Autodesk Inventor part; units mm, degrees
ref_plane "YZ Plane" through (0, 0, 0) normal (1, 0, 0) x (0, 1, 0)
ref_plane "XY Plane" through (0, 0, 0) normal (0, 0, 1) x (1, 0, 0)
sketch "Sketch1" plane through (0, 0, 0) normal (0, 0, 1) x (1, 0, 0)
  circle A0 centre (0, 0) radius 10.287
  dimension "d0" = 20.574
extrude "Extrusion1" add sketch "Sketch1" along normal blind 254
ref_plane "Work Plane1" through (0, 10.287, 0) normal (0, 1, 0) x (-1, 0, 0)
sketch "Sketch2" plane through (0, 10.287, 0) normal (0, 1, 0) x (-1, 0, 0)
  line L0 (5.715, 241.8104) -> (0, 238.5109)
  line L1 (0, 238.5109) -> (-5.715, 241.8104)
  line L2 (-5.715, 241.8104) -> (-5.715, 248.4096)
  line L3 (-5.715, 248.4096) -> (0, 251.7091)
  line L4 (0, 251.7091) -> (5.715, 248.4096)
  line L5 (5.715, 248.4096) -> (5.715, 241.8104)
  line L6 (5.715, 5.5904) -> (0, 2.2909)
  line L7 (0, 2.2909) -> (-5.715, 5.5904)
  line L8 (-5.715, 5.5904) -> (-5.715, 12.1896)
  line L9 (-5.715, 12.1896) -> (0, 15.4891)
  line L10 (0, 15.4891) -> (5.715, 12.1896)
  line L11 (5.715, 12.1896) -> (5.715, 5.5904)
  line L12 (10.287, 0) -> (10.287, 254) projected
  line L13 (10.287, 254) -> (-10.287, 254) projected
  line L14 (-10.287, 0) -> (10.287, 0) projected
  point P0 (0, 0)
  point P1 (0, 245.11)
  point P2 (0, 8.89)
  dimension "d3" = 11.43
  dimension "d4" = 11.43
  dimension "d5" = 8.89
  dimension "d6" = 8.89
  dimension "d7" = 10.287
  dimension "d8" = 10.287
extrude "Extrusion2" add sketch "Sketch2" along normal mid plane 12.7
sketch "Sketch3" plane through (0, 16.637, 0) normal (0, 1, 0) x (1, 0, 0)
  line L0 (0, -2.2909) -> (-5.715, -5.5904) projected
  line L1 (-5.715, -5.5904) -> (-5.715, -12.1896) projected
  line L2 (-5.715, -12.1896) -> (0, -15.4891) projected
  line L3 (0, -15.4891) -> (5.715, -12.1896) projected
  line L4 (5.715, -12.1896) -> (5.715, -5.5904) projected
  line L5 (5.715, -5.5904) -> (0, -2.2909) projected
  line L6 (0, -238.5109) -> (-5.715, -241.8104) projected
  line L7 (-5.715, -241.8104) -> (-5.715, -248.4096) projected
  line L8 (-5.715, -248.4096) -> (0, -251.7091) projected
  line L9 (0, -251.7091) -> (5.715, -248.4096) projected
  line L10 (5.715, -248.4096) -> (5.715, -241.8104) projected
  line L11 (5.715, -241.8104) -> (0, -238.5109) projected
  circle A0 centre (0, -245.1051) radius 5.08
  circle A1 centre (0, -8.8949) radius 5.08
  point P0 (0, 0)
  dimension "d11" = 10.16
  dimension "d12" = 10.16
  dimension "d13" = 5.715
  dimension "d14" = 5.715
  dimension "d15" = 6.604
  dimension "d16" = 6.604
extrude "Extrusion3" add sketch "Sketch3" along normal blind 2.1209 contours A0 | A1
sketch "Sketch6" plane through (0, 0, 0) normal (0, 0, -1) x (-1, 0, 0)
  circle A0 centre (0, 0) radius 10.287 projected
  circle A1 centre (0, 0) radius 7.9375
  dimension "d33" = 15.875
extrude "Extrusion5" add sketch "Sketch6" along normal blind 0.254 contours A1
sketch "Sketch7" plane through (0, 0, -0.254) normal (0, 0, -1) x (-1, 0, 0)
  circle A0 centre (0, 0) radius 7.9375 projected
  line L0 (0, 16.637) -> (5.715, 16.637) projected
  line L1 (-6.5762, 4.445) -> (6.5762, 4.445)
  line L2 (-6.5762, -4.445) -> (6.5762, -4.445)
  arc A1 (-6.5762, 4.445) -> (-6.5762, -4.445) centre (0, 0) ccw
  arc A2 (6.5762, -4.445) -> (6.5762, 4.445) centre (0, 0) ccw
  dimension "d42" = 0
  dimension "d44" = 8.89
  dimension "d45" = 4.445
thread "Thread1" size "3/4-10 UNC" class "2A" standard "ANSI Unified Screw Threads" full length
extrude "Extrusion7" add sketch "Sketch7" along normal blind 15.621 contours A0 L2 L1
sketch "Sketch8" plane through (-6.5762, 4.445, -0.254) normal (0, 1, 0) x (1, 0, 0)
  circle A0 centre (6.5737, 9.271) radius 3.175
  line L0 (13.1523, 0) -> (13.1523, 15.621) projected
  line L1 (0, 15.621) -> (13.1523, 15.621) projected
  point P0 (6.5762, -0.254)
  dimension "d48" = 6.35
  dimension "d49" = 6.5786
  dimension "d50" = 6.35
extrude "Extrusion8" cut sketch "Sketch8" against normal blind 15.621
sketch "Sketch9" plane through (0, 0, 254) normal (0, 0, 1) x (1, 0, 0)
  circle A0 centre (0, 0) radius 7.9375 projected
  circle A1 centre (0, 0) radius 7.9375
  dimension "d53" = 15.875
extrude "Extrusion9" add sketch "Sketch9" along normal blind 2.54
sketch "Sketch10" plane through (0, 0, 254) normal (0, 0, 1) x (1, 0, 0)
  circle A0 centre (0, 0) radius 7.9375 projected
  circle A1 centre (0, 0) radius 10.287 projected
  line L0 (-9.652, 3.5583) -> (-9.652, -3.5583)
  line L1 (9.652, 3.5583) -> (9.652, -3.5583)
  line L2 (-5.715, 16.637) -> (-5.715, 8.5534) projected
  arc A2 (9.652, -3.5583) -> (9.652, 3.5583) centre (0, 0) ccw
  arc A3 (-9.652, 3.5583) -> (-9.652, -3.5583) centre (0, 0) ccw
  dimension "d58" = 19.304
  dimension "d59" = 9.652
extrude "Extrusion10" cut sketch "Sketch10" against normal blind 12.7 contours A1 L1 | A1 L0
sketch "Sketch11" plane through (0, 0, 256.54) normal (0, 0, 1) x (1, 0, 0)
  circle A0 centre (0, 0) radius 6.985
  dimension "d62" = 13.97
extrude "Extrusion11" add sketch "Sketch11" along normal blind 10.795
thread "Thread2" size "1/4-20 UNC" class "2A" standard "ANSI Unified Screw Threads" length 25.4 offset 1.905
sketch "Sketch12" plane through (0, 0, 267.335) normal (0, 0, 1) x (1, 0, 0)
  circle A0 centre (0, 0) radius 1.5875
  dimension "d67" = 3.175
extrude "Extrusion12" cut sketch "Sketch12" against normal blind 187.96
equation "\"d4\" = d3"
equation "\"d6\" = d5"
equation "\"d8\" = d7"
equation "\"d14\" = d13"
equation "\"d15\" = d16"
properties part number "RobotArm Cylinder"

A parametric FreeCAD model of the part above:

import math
import FreeCAD as App
import Part
import Sketcher

V = App.Vector
Q = App.Units.Quantity


def add_polygon(sketch, points):
    """Adds a closed chain of lines whose ends are joined by coincident constraints."""
    first, n = sketch.GeometryCount, len(points)
    for a, b in zip(points, points[1:] + points[:1]):
        sketch.addGeometry(Part.LineSegment(App.Vector(*a, 0), App.Vector(*b, 0)), False)
    for i in range(n):
        sketch.addConstraint(Sketcher.Constraint("Coincident", first + i, 2, first + (i + 1) % n, 1))

doc = App.newDocument("Part")
params = doc.addObject("Spreadsheet::Sheet", "Params")
for row, (alias, value) in enumerate([
    ("sketch1_diameter", "0.81 in"),
    ("pad1_length", "10 in"),
    ("pad2_length", "0.5 in"),
    ("sketch3_diameter", "0.4 in"),
    ("pad3_length", "0.0835 in"),
    ("sketch4_diameter", "0.625 in"),
    ("pad4_length", "0.01 in"),
    ("sketch5_radius", "0.3125 in"),
    ("pad5_length", "0.615 in"),
    ("sketch6_diameter", "0.25 in"),
    ("pocket1_length", "0.615 in"),
    ("sketch7_diameter", "0.625 in"),
    ("pad6_length", "0.1 in"),
    ("sketch8_radius", "0.405 in"),
    ("pocket2_length", "0.5 in"),
    ("sketch9_diameter", "0.55 in"),
    ("pad7_length", "0.425 in"),
    ("sketch10_diameter", "0.125 in"),
    ("pocket3_length", "7.4 in"),
], start=1):
    params.set(f"A{row}", alias)
    params.set(f"B{row}", "=" + value)
    params.setAlias(f"B{row}", alias)

body = doc.addObject("PartDesign::Body", "Body")

sketch1 = doc.addObject("Sketcher::SketchObject", "Sketch")
body.addObject(sketch1)
sketch1.AttachmentSupport = (doc.XY_Plane, [""])
sketch1.MapMode = "FlatFace"
sketch1.addGeometry(Part.Circle(V(0, 0, 0), V(0, 0, 1), 10.287), False)
sketch1.addConstraint([
    Sketcher.Constraint("Coincident", 0, 3, -1, 1),
    Sketcher.Constraint("Diameter", 0, Q("0.81 in")),
])
sketch1.setExpression("Constraints[1]", "Params.sketch1_diameter")
pad1 = doc.addObject("PartDesign::Pad", "Pad")
body.addObject(pad1)
pad1.Profile = sketch1
pad1.setExpression("Length", "Params.pad1_length")

sketch2 = doc.addObject("Sketcher::SketchObject", "Sketch001")
body.addObject(sketch2)
sketch2.AttachmentSupport = (doc.XZ_Plane, [""])
sketch2.MapMode = "FlatFace"
sketch2.AttachmentOffset = App.Placement(V(0, 0, -0.405 * 25.4), App.Rotation())
add_polygon(sketch2, [(0, 238.5109), (-5.715, 241.8104), (-5.715, 248.4096), (0, 251.7091), (5.715, 248.4096), (5.715, 241.8104)])
add_polygon(sketch2, [(0, 2.2909), (-5.715, 5.5904), (-5.715, 12.1896), (0, 15.4891), (5.715, 12.1896), (5.715, 5.5904)])
sketch2.addConstraint([
    Sketcher.Constraint("Vertical", 1),
    Sketcher.Constraint("Vertical", 4),
    Sketcher.Constraint("Vertical", 7),
    Sketcher.Constraint("Vertical", 10),
    Sketcher.Constraint("Symmetric", 1, 2, 3, 2, -2),
    Sketcher.Constraint("Symmetric", 7, 2, 9, 2, -2),
    Sketcher.Constraint("PointOnObject", 2, 2, -2),
    Sketcher.Constraint("PointOnObject", 5, 2, -2),
    Sketcher.Constraint("PointOnObject", 8, 2, -2),
    Sketcher.Constraint("PointOnObject", 11, 2, -2),
    Sketcher.Constraint("Parallel", 0, 3),
    Sketcher.Constraint("Parallel", 2, 5),
    Sketcher.Constraint("Parallel", 3, 6),
    Sketcher.Constraint("Parallel", 5, 8),
    Sketcher.Constraint("Parallel", 8, 11),
    Sketcher.Constraint("Vertical", 1, 2, 6, 2),
    Sketcher.Constraint("Equal", 4, 7),
    Sketcher.Constraint("DistanceX", 1, 2, 3, 2, Q("0.45 in")),
    Sketcher.Constraint("Angle", 0, Q("150.0004 deg")),
    Sketcher.Constraint("DistanceY", 6, 2, 0, 2, Q("9.3 in")),
    Sketcher.Constraint("DistanceY", 1, 1, 1, 2, Q("0.2598 in")),
    Sketcher.Constraint("DistanceY", -1, 1, 0, 2, Q("9.5201 in")),
])
pad2 = doc.addObject("PartDesign::Pad", "Pad001")
body.addObject(pad2)
pad2.Profile = sketch2
pad2.setExpression("Length", "Params.pad2_length")
pad2.Midplane = True

sketch3 = doc.addObject("Sketcher::SketchObject", "Sketch002")
body.addObject(sketch3)
sketch3.AttachmentSupport = (doc.XZ_Plane, [""])
sketch3.MapMode = "FlatFace"
sketch3.AttachmentOffset = App.Placement(V(0, 0, -0.655 * 25.4), App.Rotation())
sketch3.addGeometry([
    Part.Circle(V(0, 245.1051, 0), V(0, 0, 1), 5.08),
    Part.Circle(V(0, 8.8949, 0), V(0, 0, 1), 5.08),
], False)
sketch3.addConstraint([
    Sketcher.Constraint("Equal", 0, 1),
    Sketcher.Constraint("PointOnObject", 0, 3, -2),
    Sketcher.Constraint("PointOnObject", 1, 3, -2),
    Sketcher.Constraint("Diameter", 0, Q("0.4 in")),
    Sketcher.Constraint("DistanceY", -1, 1, 0, 3, Q("9.6498 in")),
    Sketcher.Constraint("DistanceY", -1, 1, 1, 3, Q("0.3502 in")),
])
sketch3.setExpression("Constraints[3]", "Params.sketch3_diameter")
pad3 = doc.addObject("PartDesign::Pad", "Pad002")
body.addObject(pad3)
pad3.Profile = sketch3
pad3.setExpression("Length", "Params.pad3_length")
pad3.Reversed = True

sketch4 = doc.addObject("Sketcher::SketchObject", "Sketch003")
body.addObject(sketch4)
sketch4.AttachmentSupport = (doc.XY_Plane, [""])
sketch4.MapMode = "FlatFace"
sketch4.addGeometry(Part.Circle(V(0, 0, 0), V(0, 0, 1), 7.9375), False)
sketch4.addConstraint([
    Sketcher.Constraint("Coincident", 0, 3, -1, 1),
    Sketcher.Constraint("Diameter", 0, Q("0.625 in")),
])
sketch4.setExpression("Constraints[1]", "Params.sketch4_diameter")
pad4 = doc.addObject("PartDesign::Pad", "Pad003")
body.addObject(pad4)
pad4.Profile = sketch4
pad4.setExpression("Length", "Params.pad4_length")
pad4.Reversed = True

sketch5 = doc.addObject("Sketcher::SketchObject", "Sketch004")
body.addObject(sketch5)
sketch5.AttachmentSupport = (doc.XY_Plane, [""])
sketch5.MapMode = "FlatFace"
sketch5.AttachmentOffset = App.Placement(V(0, 0, -0.01 * 25.4), App.Rotation())
sketch5.addGeometry([
    Part.ArcOfCircle(Part.Circle(V(0, 0, 0), V(0, 0, 1), 7.9375), math.radians(145.944364), math.radians(214.055636)),
    Part.LineSegment(V(-6.5762, 4.445, 0), V(6.5762, 4.445, 0)),
    Part.ArcOfCircle(Part.Circle(V(0, 0, 0), V(0, 0, 1), 7.9375), math.radians(-34.055636), math.radians(34.055636)),
    Part.LineSegment(V(6.5762, -4.445, 0), V(-6.5762, -4.445, 0)),
], False)
sketch5.addConstraint([
    Sketcher.Constraint("Coincident", 0, 1, 1, 1),
    Sketcher.Constraint("Coincident", 1, 2, 2, 2),
    Sketcher.Constraint("Coincident", 2, 1, 3, 1),
    Sketcher.Constraint("Coincident", 3, 2, 0, 2),
    Sketcher.Constraint("Horizontal", 1),
    Sketcher.Constraint("Horizontal", 3),
    Sketcher.Constraint("Coincident", 0, 3, -1, 1),
    Sketcher.Constraint("Coincident", 2, 3, -1, 1),
    Sketcher.Constraint("Equal", 0, 2),
    Sketcher.Constraint("Vertical", 1, 2, 2, 1),
    Sketcher.Constraint("DistanceY", 2, 1, 1, 2, Q("0.35 in")),
    Sketcher.Constraint("Radius", 0, Q("0.3125 in")),
])
sketch5.setExpression("Constraints[11]", "Params.sketch5_radius")
pad5 = doc.addObject("PartDesign::Pad", "Pad004")
body.addObject(pad5)
pad5.Profile = sketch5
pad5.setExpression("Length", "Params.pad5_length")
pad5.Reversed = True

sketch6 = doc.addObject("Sketcher::SketchObject", "Sketch005")
body.addObject(sketch6)
sketch6.AttachmentSupport = (doc.XZ_Plane, [""])
sketch6.MapMode = "FlatFace"
sketch6.AttachmentOffset = App.Placement(V(0, 0, -0.175 * 25.4), App.Rotation())
sketch6.addGeometry(Part.Circle(V(-0.0025, -9.525, 0), V(0, 0, 1), 3.175), False)
sketch6.addConstraint([
    Sketcher.Constraint("Diameter", 0, Q("0.25 in")),
    Sketcher.Constraint("DistanceY", 0, 3, -1, 1, Q("0.375 in")),
    Sketcher.Constraint("DistanceX", 0, 3, -1, 1, Q("0.0001 in")),
])
sketch6.setExpression("Constraints[0]", "Params.sketch6_diameter")
pocket1 = doc.addObject("PartDesign::Pocket", "Pocket")
body.addObject(pocket1)
pocket1.Profile = sketch6
pocket1.setExpression("Length", "Params.pocket1_length")
pocket1.Reversed = True

sketch7 = doc.addObject("Sketcher::SketchObject", "Sketch006")
body.addObject(sketch7)
sketch7.AttachmentSupport = (doc.XY_Plane, [""])
sketch7.MapMode = "FlatFace"
sketch7.AttachmentOffset = App.Placement(V(0, 0, 10 * 25.4), App.Rotation())
sketch7.addGeometry(Part.Circle(V(0, 0, 0), V(0, 0, 1), 7.9375), False)
sketch7.addConstraint([
    Sketcher.Constraint("Coincident", 0, 3, -1, 1),
    Sketcher.Constraint("Diameter", 0, Q("0.625 in")),
])
sketch7.setExpression("Constraints[1]", "Params.sketch7_diameter")
pad6 = doc.addObject("PartDesign::Pad", "Pad005")
body.addObject(pad6)
pad6.Profile = sketch7
pad6.setExpression("Length", "Params.pad6_length")

sketch8 = doc.addObject("Sketcher::SketchObject", "Sketch007")
body.addObject(sketch8)
sketch8.AttachmentSupport = (doc.XY_Plane, [""])
sketch8.MapMode = "FlatFace"
sketch8.AttachmentOffset = App.Placement(V(0, 0, 10 * 25.4), App.Rotation())
sketch8.addGeometry([
    Part.ArcOfCircle(Part.Circle(V(0, 0, 0), V(0, 0, 1), 10.287), math.radians(-20.23688), math.radians(20.23688)),
    Part.LineSegment(V(9.652, -3.5583, 0), V(9.652, 3.5583, 0)),
    Part.ArcOfCircle(Part.Circle(V(0, 0, 0), V(0, 0, 1), 10.287), math.radians(159.76312), math.radians(200.23688)),
    Part.LineSegment(V(-9.652, 3.5583, 0), V(-9.652, -3.5583, 0)),
], False)
sketch8.addConstraint([
    Sketcher.Constraint("Coincident", 0, 1, 1, 1),
    Sketcher.Constraint("Coincident", 1, 2, 0, 2),
    Sketcher.Constraint("Coincident", 2, 1, 3, 1),
    Sketcher.Constraint("Coincident", 3, 2, 2, 2),
    Sketcher.Constraint("Vertical", 1),
    Sketcher.Constraint("Vertical", 3),
    Sketcher.Constraint("Coincident", 0, 3, -1, 1),
    Sketcher.Constraint("Coincident", 2, 3, -1, 1),
    Sketcher.Constraint("Equal", 0, 2),
    Sketcher.Constraint("Horizontal", 1, 2, 2, 1),
    Sketcher.Constraint("DistanceX", -1, 1, 0, 1, Q("0.38 in")),
    Sketcher.Constraint("Radius", 0, Q("0.405 in")),
])
sketch8.setExpression("Constraints[11]", "Params.sketch8_radius")
pocket2 = doc.addObject("PartDesign::Pocket", "Pocket001")
body.addObject(pocket2)
pocket2.Profile = sketch8
pocket2.setExpression("Length", "Params.pocket2_length")

sketch9 = doc.addObject("Sketcher::SketchObject", "Sketch008")
body.addObject(sketch9)
sketch9.AttachmentSupport = (doc.XY_Plane, [""])
sketch9.MapMode = "FlatFace"
sketch9.AttachmentOffset = App.Placement(V(0, 0, 10.1 * 25.4), App.Rotation())
sketch9.addGeometry(Part.Circle(V(0, 0, 0), V(0, 0, 1), 6.985), False)
sketch9.addConstraint([
    Sketcher.Constraint("Coincident", 0, 3, -1, 1),
    Sketcher.Constraint("Diameter", 0, Q("0.55 in")),
])
sketch9.setExpression("Constraints[1]", "Params.sketch9_diameter")
pad7 = doc.addObject("PartDesign::Pad", "Pad006")
body.addObject(pad7)
pad7.Profile = sketch9
pad7.setExpression("Length", "Params.pad7_length")

sketch10 = doc.addObject("Sketcher::SketchObject", "Sketch009")
body.addObject(sketch10)
sketch10.AttachmentSupport = (doc.XY_Plane, [""])
sketch10.MapMode = "FlatFace"
sketch10.AttachmentOffset = App.Placement(V(0, 0, 10.525 * 25.4), App.Rotation())
sketch10.addGeometry(Part.Circle(V(0, 0, 0), V(0, 0, 1), 1.5875), False)
sketch10.addConstraint([
    Sketcher.Constraint("Coincident", 0, 3, -1, 1),
    Sketcher.Constraint("Diameter", 0, Q("0.125 in")),
])
sketch10.setExpression("Constraints[1]", "Params.sketch10_diameter")
pocket3 = doc.addObject("PartDesign::Pocket", "Pocket002")
body.addObject(pocket3)
pocket3.Profile = sketch10
pocket3.setExpression("Length", "Params.pocket3_length")

doc.recompute()
